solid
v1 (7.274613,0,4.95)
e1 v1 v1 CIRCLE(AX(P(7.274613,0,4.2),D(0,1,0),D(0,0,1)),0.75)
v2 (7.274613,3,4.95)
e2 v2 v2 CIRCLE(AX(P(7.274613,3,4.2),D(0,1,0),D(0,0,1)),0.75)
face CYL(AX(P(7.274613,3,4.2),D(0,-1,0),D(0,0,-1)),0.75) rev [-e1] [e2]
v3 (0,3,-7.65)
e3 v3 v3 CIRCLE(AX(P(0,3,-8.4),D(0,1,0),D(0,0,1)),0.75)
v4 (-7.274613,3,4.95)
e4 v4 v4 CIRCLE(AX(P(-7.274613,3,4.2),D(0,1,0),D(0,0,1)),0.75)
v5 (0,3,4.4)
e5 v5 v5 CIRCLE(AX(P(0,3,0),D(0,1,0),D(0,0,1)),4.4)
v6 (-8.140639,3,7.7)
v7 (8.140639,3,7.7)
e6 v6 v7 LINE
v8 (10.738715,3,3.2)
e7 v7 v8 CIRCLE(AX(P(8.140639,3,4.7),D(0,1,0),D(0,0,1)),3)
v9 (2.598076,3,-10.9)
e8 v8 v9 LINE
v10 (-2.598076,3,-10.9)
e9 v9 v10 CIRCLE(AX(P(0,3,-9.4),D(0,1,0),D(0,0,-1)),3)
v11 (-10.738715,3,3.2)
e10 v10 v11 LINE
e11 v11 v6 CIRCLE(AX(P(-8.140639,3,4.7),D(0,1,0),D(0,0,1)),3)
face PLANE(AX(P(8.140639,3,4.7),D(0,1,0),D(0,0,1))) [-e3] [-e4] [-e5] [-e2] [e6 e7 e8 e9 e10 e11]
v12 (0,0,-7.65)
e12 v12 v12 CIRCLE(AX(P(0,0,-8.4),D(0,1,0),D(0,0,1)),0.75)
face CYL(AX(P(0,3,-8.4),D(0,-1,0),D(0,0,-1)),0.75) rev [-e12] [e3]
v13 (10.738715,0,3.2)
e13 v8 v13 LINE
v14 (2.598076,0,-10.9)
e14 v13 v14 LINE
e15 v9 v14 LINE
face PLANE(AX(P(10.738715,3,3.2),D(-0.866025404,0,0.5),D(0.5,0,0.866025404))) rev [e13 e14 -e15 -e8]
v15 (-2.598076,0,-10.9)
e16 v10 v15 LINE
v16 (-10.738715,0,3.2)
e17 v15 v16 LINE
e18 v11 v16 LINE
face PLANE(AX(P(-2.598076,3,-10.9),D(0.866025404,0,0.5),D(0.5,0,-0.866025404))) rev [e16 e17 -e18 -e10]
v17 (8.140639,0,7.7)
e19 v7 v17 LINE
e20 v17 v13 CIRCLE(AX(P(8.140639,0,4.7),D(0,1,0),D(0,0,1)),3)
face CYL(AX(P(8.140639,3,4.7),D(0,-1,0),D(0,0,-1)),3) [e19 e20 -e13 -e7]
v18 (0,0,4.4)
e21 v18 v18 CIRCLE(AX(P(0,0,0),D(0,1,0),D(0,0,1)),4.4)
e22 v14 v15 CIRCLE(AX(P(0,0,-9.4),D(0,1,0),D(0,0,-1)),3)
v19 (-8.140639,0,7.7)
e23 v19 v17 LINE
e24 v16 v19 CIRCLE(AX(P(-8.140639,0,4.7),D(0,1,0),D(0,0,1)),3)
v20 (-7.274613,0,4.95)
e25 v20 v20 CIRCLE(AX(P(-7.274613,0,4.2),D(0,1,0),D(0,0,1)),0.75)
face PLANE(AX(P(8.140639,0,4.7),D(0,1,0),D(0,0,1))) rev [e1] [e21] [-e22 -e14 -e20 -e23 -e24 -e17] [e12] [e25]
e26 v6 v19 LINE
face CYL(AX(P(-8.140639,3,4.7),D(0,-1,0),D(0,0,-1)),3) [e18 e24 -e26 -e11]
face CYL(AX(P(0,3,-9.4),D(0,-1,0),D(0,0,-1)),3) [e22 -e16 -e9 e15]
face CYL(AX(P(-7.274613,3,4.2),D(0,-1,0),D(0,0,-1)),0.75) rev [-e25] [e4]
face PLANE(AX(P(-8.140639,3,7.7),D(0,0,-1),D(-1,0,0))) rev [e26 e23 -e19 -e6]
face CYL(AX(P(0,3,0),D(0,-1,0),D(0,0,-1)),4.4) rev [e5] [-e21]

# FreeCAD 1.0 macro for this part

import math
import FreeCAD as App
import Part
import Sketcher
Q = App.Units.Quantity

doc = App.newDocument("Part")
body = doc.addObject("PartDesign::Body", "Body")

sketch1 = doc.addObject("Sketcher::SketchObject", "Sketch")
body.addObject(sketch1)
sketch1.AttachmentSupport = (doc.XZ_Plane, [""])
sketch1.MapMode = "FlatFace"
sketch1.addGeometry(Part.LineSegment(App.Vector(-2.6, -10.9, 0), App.Vector(-10.7, 3.2, 0)), False)
sketch1.addGeometry(Part.ArcOfCircle(Part.Circle(App.Vector(-8.1, 4.7, 0), App.Vector(0, 0, 1), 3), math.radians(90), math.radians(210)), False)
sketch1.addGeometry(Part.LineSegment(App.Vector(-8.1, 7.7, 0), App.Vector(8.1, 7.7, 0)), False)
sketch1.addGeometry(Part.ArcOfCircle(Part.Circle(App.Vector(8.1, 4.7, 0), App.Vector(0, 0, 1), 3), math.radians(-30), math.radians(90)), False)
sketch1.addGeometry(Part.LineSegment(App.Vector(10.7, 3.2, 0), App.Vector(2.6, -10.9, 0)), False)
sketch1.addGeometry(Part.ArcOfCircle(Part.Circle(App.Vector(0, -9.4, 0), App.Vector(0, 0, 1), 3), math.radians(-150), math.radians(-30)), False)
sketch1.addGeometry(Part.Circle(App.Vector(-7.3, 4.2, 0), App.Vector(0, 0, 1), 0.8), False)
sketch1.addGeometry(Part.Circle(App.Vector(7.3, 4.2, 0), App.Vector(0, 0, 1), 0.8), False)
sketch1.addGeometry(Part.Circle(App.Vector(0, 0, 0), App.Vector(0, 0, 1), 4.4), False)
sketch1.addGeometry(Part.Circle(App.Vector(0, -8.4, 0), App.Vector(0, 0, 1), 0.8), False)
sketch1.addConstraint(Sketcher.Constraint("Tangent", 0, 2, 1, 2))
sketch1.addConstraint(Sketcher.Constraint("Tangent", 1, 1, 2, 1))
sketch1.addConstraint(Sketcher.Constraint("Tangent", 2, 2, 3, 2))
sketch1.addConstraint(Sketcher.Constraint("Tangent", 3, 1, 4, 1))
sketch1.addConstraint(Sketcher.Constraint("Tangent", 4, 2, 5, 2))
sketch1.addConstraint(Sketcher.Constraint("Tangent", 5, 1, 0, 1))
sketch1.addConstraint(Sketcher.Constraint("Horizontal", 2))
sketch1.addConstraint(Sketcher.Constraint("Coincident", 8, 3, -1, 1))
sketch1.addConstraint(Sketcher.Constraint("Equal", 1, 3))
sketch1.addConstraint(Sketcher.Constraint("Equal", 3, 5))
sketch1.addConstraint(Sketcher.Constraint("Equal", 6, 7))
sketch1.addConstraint(Sketcher.Constraint("Equal", 7, 9))
sketch1.addConstraint(Sketcher.Constraint("Symmetric", 6, 3, 7, 3, -2))
sketch1.addConstraint(Sketcher.Constraint("Symmetric", 0, 2, 3, 1, -2))
sketch1.addConstraint(Sketcher.Constraint("PointOnObject", 9, 3, -2))
sketch1.addConstraint(Sketcher.Constraint("Radius", 1, Q("3 mm")))
sketch1.addConstraint(Sketcher.Constraint("Diameter", 6, Q("1.5 mm")))
sketch1.addConstraint(Sketcher.Constraint("Diameter", 8, Q("8.8 mm")))
sketch1.addConstraint(Sketcher.Constraint("Angle", 0, Q("120 deg")))
sketch1.addConstraint(Sketcher.Constraint("DistanceY", 5, 3, 9, 3, Q("1 mm")))
sketch1.addConstraint(Sketcher.Constraint("DistanceY", 0, 2, 6, 3, Q("1 mm")))
sketch1.addConstraint(Sketcher.Constraint("DistanceY", -1, 1, 1, 3, Q("4.7 mm")))
sketch1.addConstraint(Sketcher.Constraint("DistanceY", 5, 3, -1, 1, Q("9.4 mm")))
sketch1.addConstraint(Sketcher.Constraint("DistanceX", 0, 2, 6, 3, Q("3.464102 mm")))
pad1 = doc.addObject("PartDesign::Pad", "Pad")
body.addObject(pad1)
pad1.Profile = sketch1
pad1.Length = 3
pad1.Reversed = True

doc.recompute()
